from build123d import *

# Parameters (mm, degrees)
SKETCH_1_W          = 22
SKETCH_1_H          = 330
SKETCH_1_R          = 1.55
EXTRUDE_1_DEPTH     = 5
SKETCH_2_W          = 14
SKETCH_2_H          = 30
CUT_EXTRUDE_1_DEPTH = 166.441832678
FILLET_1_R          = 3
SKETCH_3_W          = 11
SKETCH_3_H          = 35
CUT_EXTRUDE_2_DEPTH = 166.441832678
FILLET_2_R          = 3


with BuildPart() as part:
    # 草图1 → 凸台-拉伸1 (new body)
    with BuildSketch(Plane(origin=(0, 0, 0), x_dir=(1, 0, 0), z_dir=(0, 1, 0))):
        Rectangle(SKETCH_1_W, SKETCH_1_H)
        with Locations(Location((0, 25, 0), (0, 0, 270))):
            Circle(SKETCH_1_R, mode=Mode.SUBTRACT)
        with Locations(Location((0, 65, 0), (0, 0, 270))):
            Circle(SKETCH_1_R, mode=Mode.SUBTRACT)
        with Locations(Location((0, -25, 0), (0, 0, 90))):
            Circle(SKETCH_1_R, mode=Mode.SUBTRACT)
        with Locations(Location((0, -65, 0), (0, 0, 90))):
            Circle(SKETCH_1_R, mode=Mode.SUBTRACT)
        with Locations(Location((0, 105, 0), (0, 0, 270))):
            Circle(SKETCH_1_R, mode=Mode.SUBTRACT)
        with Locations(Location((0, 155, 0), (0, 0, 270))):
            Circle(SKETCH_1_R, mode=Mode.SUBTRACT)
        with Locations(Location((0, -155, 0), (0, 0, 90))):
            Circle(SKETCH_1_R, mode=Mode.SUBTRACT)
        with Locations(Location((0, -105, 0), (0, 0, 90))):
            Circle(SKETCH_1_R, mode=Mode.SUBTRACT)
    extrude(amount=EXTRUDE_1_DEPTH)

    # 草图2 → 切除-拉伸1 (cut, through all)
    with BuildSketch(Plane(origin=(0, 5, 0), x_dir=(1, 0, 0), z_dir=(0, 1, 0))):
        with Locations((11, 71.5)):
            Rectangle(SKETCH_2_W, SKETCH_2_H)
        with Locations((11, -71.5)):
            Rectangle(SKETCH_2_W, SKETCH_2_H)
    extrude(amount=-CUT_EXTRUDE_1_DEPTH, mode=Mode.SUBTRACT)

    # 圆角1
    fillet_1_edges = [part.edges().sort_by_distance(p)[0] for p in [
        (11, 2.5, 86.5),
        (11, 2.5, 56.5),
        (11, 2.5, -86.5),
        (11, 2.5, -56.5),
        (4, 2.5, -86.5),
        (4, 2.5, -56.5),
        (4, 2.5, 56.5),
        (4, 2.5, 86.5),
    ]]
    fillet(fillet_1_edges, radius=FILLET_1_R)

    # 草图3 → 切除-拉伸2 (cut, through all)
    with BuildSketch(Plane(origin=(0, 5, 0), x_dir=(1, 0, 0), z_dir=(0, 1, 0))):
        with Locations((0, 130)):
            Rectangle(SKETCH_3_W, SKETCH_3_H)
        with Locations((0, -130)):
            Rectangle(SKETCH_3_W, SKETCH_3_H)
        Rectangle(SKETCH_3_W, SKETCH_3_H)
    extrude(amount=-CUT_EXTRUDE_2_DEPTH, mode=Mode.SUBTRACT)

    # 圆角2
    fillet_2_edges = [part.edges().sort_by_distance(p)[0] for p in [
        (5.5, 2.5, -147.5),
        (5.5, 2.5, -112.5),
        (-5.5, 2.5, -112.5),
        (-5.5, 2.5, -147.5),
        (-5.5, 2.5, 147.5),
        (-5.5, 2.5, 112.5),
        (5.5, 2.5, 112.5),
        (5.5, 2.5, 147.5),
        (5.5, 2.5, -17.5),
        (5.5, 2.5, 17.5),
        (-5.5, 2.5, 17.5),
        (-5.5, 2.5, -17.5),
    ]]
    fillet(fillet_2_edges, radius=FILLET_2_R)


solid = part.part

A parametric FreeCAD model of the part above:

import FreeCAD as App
import Part
import Sketcher


def edges_at(feature, points):
    """Names of the edges that pass closest to the given points."""
    edges = feature.Shape.Edges
    near = lambda p: min(range(len(edges)), key=lambda i: edges[i].distToShape(Part.Vertex(*p))[0])
    return sorted({f"Edge{near(p) + 1}" for p in points})

doc = App.newDocument("Part")
body = doc.addObject("PartDesign::Body", "Body")

# Sketch on XZ plane
sketch1 = doc.addObject("Sketcher::SketchObject", "Sketch")
body.addObject(sketch1)
sketch1.AttachmentSupport = (doc.XZ_Plane, [""])
sketch1.MapMode = "FlatFace"
sketch1.addGeometry(Part.LineSegment(App.Vector(-11, -165, 0), App.Vector(-11, 165, 0)), False)
sketch1.addGeometry(Part.LineSegment(App.Vector(-11, 165, 0), App.Vector(11, 165, 0)), False)
sketch1.addGeometry(Part.LineSegment(App.Vector(11, 165, 0), App.Vector(11, -165, 0)), False)
sketch1.addGeometry(Part.LineSegment(App.Vector(11, -165, 0), App.Vector(-11, -165, 0)), False)
sketch1.addGeometry(Part.Circle(App.Vector(0, 155, 0), App.Vector(0, 0, 1), 1.6), False)
sketch1.addGeometry(Part.Circle(App.Vector(0, 105, 0), App.Vector(0, 0, 1), 1.6), False)
sketch1.addGeometry(Part.Circle(App.Vector(0, 65, 0), App.Vector(0, 0, 1), 1.6), False)
sketch1.addGeometry(Part.Circle(App.Vector(0, 25, 0), App.Vector(0, 0, 1), 1.6), False)
sketch1.addGeometry(Part.Circle(App.Vector(0, -25, 0), App.Vector(0, 0, 1), 1.6), False)
sketch1.addGeometry(Part.Circle(App.Vector(0, -65, 0), App.Vector(0, 0, 1), 1.6), False)
sketch1.addGeometry(Part.Circle(App.Vector(0, -105, 0), App.Vector(0, 0, 1), 1.6), False)
sketch1.addGeometry(Part.Circle(App.Vector(0, -155, 0), App.Vector(0, 0, 1), 1.6), False)
sketch1.addConstraint(Sketcher.Constraint("Coincident", 0, 2, 1, 1))
sketch1.addConstraint(Sketcher.Constraint("Coincident", 1, 2, 2, 1))
sketch1.addConstraint(Sketcher.Constraint("Coincident", 2, 2, 3, 1))
sketch1.addConstraint(Sketcher.Constraint("Coincident", 3, 2, 0, 1))
sketch1.addConstraint(Sketcher.Constraint("Vertical", 0))
sketch1.addConstraint(Sketcher.Constraint("Horizontal", 1))
sketch1.addConstraint(Sketcher.Constraint("Vertical", 2))
sketch1.addConstraint(Sketcher.Constraint("Horizontal", 3))
sketch1.addConstraint(Sketcher.Constraint("Equal", 4, 5))
sketch1.addConstraint(Sketcher.Constraint("Equal", 5, 6))
sketch1.addConstraint(Sketcher.Constraint("Equal", 6, 7))
sketch1.addConstraint(Sketcher.Constraint("Equal", 7, 8))
sketch1.addConstraint(Sketcher.Constraint("Equal", 8, 9))
sketch1.addConstraint(Sketcher.Constraint("Equal", 9, 10))
sketch1.addConstraint(Sketcher.Constraint("Equal", 10, 11))
sketch1.addConstraint(Sketcher.Constraint("Symmetric", 7, 3, 8, 3, -1, 1))
sketch1.addConstraint(Sketcher.Constraint("Symmetric", 6, 3, 9, 3, -1, 1))
sketch1.addConstraint(Sketcher.Constraint("Symmetric", 5, 3, 10, 3, -1, 1))
sketch1.addConstraint(Sketcher.Constraint("Symmetric", 4, 3, 11, 3, -1, 1))
sketch1.addConstraint(Sketcher.Constraint("Symmetric", 0, 2, 2, 2, -1, 1))
sketch1.addConstraint(Sketcher.Constraint("PointOnObject", 4, 3, -2))
sketch1.addConstraint(Sketcher.Constraint("PointOnObject", 5, 3, -2))
sketch1.addConstraint(Sketcher.Constraint("PointOnObject", 6, 3, -2))
sketch1.addConstraint(Sketcher.Constraint("PointOnObject", 7, 3, -2))
sketch1.addConstraint(Sketcher.Constraint("Diameter", 4, 3.1))
sketch1.addConstraint(Sketcher.Constraint("DistanceX", 1, 1, 1, 2, 22.0))
sketch1.addConstraint(Sketcher.Constraint("DistanceY", 0, 1, 0, 2, 330.0))
sketch1.addConstraint(Sketcher.Constraint("DistanceY", -1, 1, 4, 3, 155.0))
sketch1.addConstraint(Sketcher.Constraint("DistanceY", -1, 1, 5, 3, 105.0))
sketch1.addConstraint(Sketcher.Constraint("DistanceY", -1, 1, 6, 3, 65.0))
sketch1.addConstraint(Sketcher.Constraint("DistanceY", -1, 1, 7, 3, 25.0))
pad1 = doc.addObject("PartDesign::Pad", "Pad")
body.addObject(pad1)
pad1.Profile = sketch1
pad1.Length = 5
pad1.Reversed = True

# Sketch on XZ plane
sketch2 = doc.addObject("Sketcher::SketchObject", "Sketch001")
body.addObject(sketch2)
sketch2.AttachmentSupport = (doc.XZ_Plane, [""])
sketch2.MapMode = "FlatFace"
sketch2.AttachmentOffset = App.Placement(App.Vector(0, 0, -5), App.Rotation())
sketch2.addGeometry(Part.LineSegment(App.Vector(4, -86, 0), App.Vector(4, -56, 0)), False)
sketch2.addGeometry(Part.LineSegment(App.Vector(4, -56, 0), App.Vector(18, -56, 0)), False)
sketch2.addGeometry(Part.LineSegment(App.Vector(18, -56, 0), App.Vector(18, -86, 0)), False)
sketch2.addGeometry(Part.LineSegment(App.Vector(18, -86, 0), App.Vector(4, -86, 0)), False)
sketch2.addGeometry(Part.LineSegment(App.Vector(4, 56, 0), App.Vector(4, 86, 0)), False)
sketch2.addGeometry(Part.LineSegment(App.Vector(4, 86, 0), App.Vector(18, 86, 0)), False)
sketch2.addGeometry(Part.LineSegment(App.Vector(18, 86, 0), App.Vector(18, 56, 0)), False)
sketch2.addGeometry(Part.LineSegment(App.Vector(18, 56, 0), App.Vector(4, 56, 0)), False)
sketch2.addConstraint(Sketcher.Constraint("Coincident", 0, 2, 1, 1))
sketch2.addConstraint(Sketcher.Constraint("Coincident", 1, 2, 2, 1))
sketch2.addConstraint(Sketcher.Constraint("Coincident", 2, 2, 3, 1))
sketch2.addConstraint(Sketcher.Constraint("Coincident", 3, 2, 0, 1))
sketch2.addConstraint(Sketcher.Constraint("Coincident", 4, 2, 5, 1))
sketch2.addConstraint(Sketcher.Constraint("Coincident", 5, 2, 6, 1))
sketch2.addConstraint(Sketcher.Constraint("Coincident", 6, 2, 7, 1))
sketch2.addConstraint(Sketcher.Constraint("Coincident", 7, 2, 4, 1))
sketch2.addConstraint(Sketcher.Constraint("Vertical", 0))
sketch2.addConstraint(Sketcher.Constraint("Horizontal", 1))
sketch2.addConstraint(Sketcher.Constraint("Vertical", 2))
sketch2.addConstraint(Sketcher.Constraint("Horizontal", 3))
sketch2.addConstraint(Sketcher.Constraint("Vertical", 4))
sketch2.addConstraint(Sketcher.Constraint("Horizontal", 5))
sketch2.addConstraint(Sketcher.Constraint("Vertical", 6))
sketch2.addConstraint(Sketcher.Constraint("Horizontal", 7))
sketch2.addConstraint(Sketcher.Constraint("Symmetric", 3, 2, 4, 2, -1))
sketch2.addConstraint(Sketcher.Constraint("Symmetric", 1, 2, 6, 2, -1))
sketch2.addConstraint(Sketcher.Constraint("DistanceX", 1, 1, 1, 2, 14.0))
sketch2.addConstraint(Sketcher.Constraint("DistanceY", 0, 1, 0, 2, 30.0))
sketch2.addConstraint(Sketcher.Constraint("DistanceX", -1, 1, 0, 2, 4.0))
sketch2.addConstraint(Sketcher.Constraint("DistanceY", 0, 2, 4, 2, 143.0))
pocket1 = doc.addObject("PartDesign::Pocket", "Pocket")
body.addObject(pocket1)
pocket1.Profile = sketch2
pocket1.Type = "ThroughAll"
pocket1.Reversed = True
doc.recompute()

fillet = doc.addObject("PartDesign::Fillet", "Fillet")
body.addObject(fillet)
fillet.Base = (pocket1, edges_at(pocket1, [
    (11, 2.5, 86.5),
    (11, 2.5, 56.5),
    (11, 2.5, -86.5),
    (11, 2.5, -56.5),
    (4, 2.5, -86.5),
    (4, 2.5, -56.5),
    (4, 2.5, 56.5),
    (4, 2.5, 86.5),
]))
fillet.Radius = 3

# Sketch on XZ plane
sketch3 = doc.addObject("Sketcher::SketchObject", "Sketch002")
body.addObject(sketch3)
sketch3.AttachmentSupport = (doc.XZ_Plane, [""])
sketch3.MapMode = "FlatFace"
sketch3.AttachmentOffset = App.Placement(App.Vector(0, 0, -5), App.Rotation())
sketch3.addGeometry(Part.LineSegment(App.Vector(-6, -148, 0), App.Vector(-6, -112, 0)), False)
sketch3.addGeometry(Part.LineSegment(App.Vector(-6, -112, 0), App.Vector(6, -112, 0)), False)
sketch3.addGeometry(Part.LineSegment(App.Vector(6, -112, 0), App.Vector(6, -148, 0)), False)
sketch3.addGeometry(Part.LineSegment(App.Vector(6, -148, 0), App.Vector(-6, -148, 0)), False)
sketch3.addGeometry(Part.LineSegment(App.Vector(-6, 112, 0), App.Vector(-6, 148, 0)), False)
sketch3.addGeometry(Part.LineSegment(App.Vector(-6, 148, 0), App.Vector(6, 148, 0)), False)
sketch3.addGeometry(Part.LineSegment(App.Vector(6, 148, 0), App.Vector(6, 112, 0)), False)
sketch3.addGeometry(Part.LineSegment(App.Vector(6, 112, 0), App.Vector(-6, 112, 0)), False)
sketch3.addGeometry(Part.LineSegment(App.Vector(-6, -18, 0), App.Vector(-6, 18, 0)), False)
sketch3.addGeometry(Part.LineSegment(App.Vector(-6, 18, 0), App.Vector(6, 18, 0)), False)
sketch3.addGeometry(Part.LineSegment(App.Vector(6, 18, 0), App.Vector(6, -18, 0)), False)
sketch3.addGeometry(Part.LineSegment(App.Vector(6, -18, 0), App.Vector(-6, -18, 0)), False)
sketch3.addConstraint(Sketcher.Constraint("Coincident", 0, 2, 1, 1))
sketch3.addConstraint(Sketcher.Constraint("Coincident", 1, 2, 2, 1))
sketch3.addConstraint(Sketcher.Constraint("Coincident", 2, 2, 3, 1))
sketch3.addConstraint(Sketcher.Constraint("Coincident", 3, 2, 0, 1))
sketch3.addConstraint(Sketcher.Constraint("Coincident", 4, 2, 5, 1))
sketch3.addConstraint(Sketcher.Constraint("Coincident", 5, 2, 6, 1))
sketch3.addConstraint(Sketcher.Constraint("Coincident", 6, 2, 7, 1))
sketch3.addConstraint(Sketcher.Constraint("Coincident", 7, 2, 4, 1))
sketch3.addConstraint(Sketcher.Constraint("Coincident", 8, 2, 9, 1))
sketch3.addConstraint(Sketcher.Constraint("Coincident", 9, 2, 10, 1))
sketch3.addConstraint(Sketcher.Constraint("Coincident", 10, 2, 11, 1))
sketch3.addConstraint(Sketcher.Constraint("Coincident", 11, 2, 8, 1))
sketch3.addConstraint(Sketcher.Constraint("Vertical", 0))
sketch3.addConstraint(Sketcher.Constraint("Horizontal", 1))
sketch3.addConstraint(Sketcher.Constraint("Vertical", 2))
sketch3.addConstraint(Sketcher.Constraint("Horizontal", 3))
sketch3.addConstraint(Sketcher.Constraint("Vertical", 4))
sketch3.addConstraint(Sketcher.Constraint("Horizontal", 5))
sketch3.addConstraint(Sketcher.Constraint("Vertical", 6))
sketch3.addConstraint(Sketcher.Constraint("Horizontal", 7))
sketch3.addConstraint(Sketcher.Constraint("Vertical", 8))
sketch3.addConstraint(Sketcher.Constraint("Horizontal", 9))
sketch3.addConstraint(Sketcher.Constraint("Vertical", 10))
sketch3.addConstraint(Sketcher.Constraint("Horizontal", 11))
sketch3.addConstraint(Sketcher.Constraint("Symmetric", 2, 2, 4, 2, -1, 1))
sketch3.addConstraint(Sketcher.Constraint("Symmetric", 0, 2, 6, 2, -1, 1))
sketch3.addConstraint(Sketcher.Constraint("Symmetric", 8, 2, 10, 2, -1, 1))
sketch3.addConstraint(Sketcher.Constraint("Vertical", 3, 2, 4, 2))
sketch3.addConstraint(Sketcher.Constraint("Vertical", 7, 2, 8, 2))
sketch3.addConstraint(Sketcher.Constraint("Equal", 6, 8))
sketch3.addConstraint(Sketcher.Constraint("DistanceX", 1, 1, 1, 2, 11.0))
sketch3.addConstraint(Sketcher.Constraint("DistanceY", 0, 1, 0, 2, 35.0))
sketch3.addConstraint(Sketcher.Constraint("DistanceY", 0, 2, 4, 2, 260.0))
pocket2 = doc.addObject("PartDesign::Pocket", "Pocket001")
body.addObject(pocket2)
pocket2.Profile = sketch3
pocket2.Type = "ThroughAll"
pocket2.Reversed = True
doc.recompute()

fillet2 = doc.addObject("PartDesign::Fillet", "Fillet001")
body.addObject(fillet2)
fillet2.Base = (pocket2, edges_at(pocket2, [
    (5.5, 2.5, -147.5),
    (5.5, 2.5, -112.5),
    (-5.5, 2.5, -112.5),
    (-5.5, 2.5, -147.5),
    (-5.5, 2.5, 147.5),
    (-5.5, 2.5, 112.5),
    (5.5, 2.5, 112.5),
    (5.5, 2.5, 147.5),
    (5.5, 2.5, -17.5),
    (5.5, 2.5, 17.5),
    (-5.5, 2.5, 17.5),
    (-5.5, 2.5, -17.5),
]))
fillet2.Radius = 3

doc.recompute()
